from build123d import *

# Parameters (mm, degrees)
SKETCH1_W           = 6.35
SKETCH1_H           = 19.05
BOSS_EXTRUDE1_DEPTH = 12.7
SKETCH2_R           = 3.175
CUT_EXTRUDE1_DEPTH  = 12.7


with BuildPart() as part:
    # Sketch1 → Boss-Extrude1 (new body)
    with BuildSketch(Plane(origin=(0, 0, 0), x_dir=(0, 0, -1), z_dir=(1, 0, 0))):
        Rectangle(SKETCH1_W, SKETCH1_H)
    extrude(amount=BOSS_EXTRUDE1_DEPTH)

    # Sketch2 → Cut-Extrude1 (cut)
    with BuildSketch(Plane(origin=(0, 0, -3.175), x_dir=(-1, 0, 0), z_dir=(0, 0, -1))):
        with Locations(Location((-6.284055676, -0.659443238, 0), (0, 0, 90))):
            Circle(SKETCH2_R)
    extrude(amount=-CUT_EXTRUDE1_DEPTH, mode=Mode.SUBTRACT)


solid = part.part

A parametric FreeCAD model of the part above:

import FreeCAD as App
import Part
import Sketcher
Q = App.Units.Quantity

doc = App.newDocument("Part")
body = doc.addObject("PartDesign::Body", "Body")

# Sketch on YZ plane
sketch1 = doc.addObject("Sketcher::SketchObject", "Sketch")
body.addObject(sketch1)
sketch1.AttachmentSupport = (doc.YZ_Plane, [""])
sketch1.MapMode = "FlatFace"
sketch1.addGeometry([
    Part.LineSegment(App.Vector(10, 3, 0), App.Vector(-10, 3, 0)),
    Part.LineSegment(App.Vector(-10, 3, 0), App.Vector(-10, -3, 0)),
    Part.LineSegment(App.Vector(-10, -3, 0), App.Vector(10, -3, 0)),
    Part.LineSegment(App.Vector(10, -3, 0), App.Vector(10, 3, 0)),
], False)
sketch1.addConstraint([
    Sketcher.Constraint("Coincident", 0, 2, 1, 1),
    Sketcher.Constraint("Coincident", 1, 2, 2, 1),
    Sketcher.Constraint("Coincident", 2, 2, 3, 1),
    Sketcher.Constraint("Coincident", 3, 2, 0, 1),
    Sketcher.Constraint("Horizontal", 0),
    Sketcher.Constraint("Vertical", 1),
    Sketcher.Constraint("Horizontal", 2),
    Sketcher.Constraint("Vertical", 3),
    Sketcher.Constraint("Symmetric", 0, 2, 2, 2, -1, 1),
    Sketcher.Constraint("DistanceX", 0, 2, 0, 1, Q("0.75 in")),
    Sketcher.Constraint("DistanceY", 1, 2, 1, 1, Q("0.25 in")),
])
pad1 = doc.addObject("PartDesign::Pad", "Pad")
body.addObject(pad1)
pad1.Profile = sketch1
pad1.Length = Q("0.5 in")

# Sketch on XY plane
sketch2 = doc.addObject("Sketcher::SketchObject", "Sketch001")
body.addObject(sketch2)
sketch2.AttachmentSupport = (doc.XY_Plane, [""])
sketch2.MapMode = "FlatFace"
sketch2.AttachmentOffset = App.Placement(App.Vector(0, 0, -0.125 * 25.4), App.Rotation())
sketch2.addGeometry(Part.Circle(App.Vector(6.3, -0.7, 0), App.Vector(0, 0, 1), 3.2), False)
sketch2.addConstraint([
    Sketcher.Constraint("Diameter", 0, Q("0.25 in")),
    Sketcher.Constraint("DistanceX", -1, 1, 0, 3, 6.284056),
    Sketcher.Constraint("DistanceY", 0, 3, -1, 1, 0.659443),
])
pocket1 = doc.addObject("PartDesign::Pocket", "Pocket")
body.addObject(pocket1)
pocket1.Profile = sketch2
pocket1.Length = Q("0.5 in")
pocket1.Reversed = True

doc.recompute()
